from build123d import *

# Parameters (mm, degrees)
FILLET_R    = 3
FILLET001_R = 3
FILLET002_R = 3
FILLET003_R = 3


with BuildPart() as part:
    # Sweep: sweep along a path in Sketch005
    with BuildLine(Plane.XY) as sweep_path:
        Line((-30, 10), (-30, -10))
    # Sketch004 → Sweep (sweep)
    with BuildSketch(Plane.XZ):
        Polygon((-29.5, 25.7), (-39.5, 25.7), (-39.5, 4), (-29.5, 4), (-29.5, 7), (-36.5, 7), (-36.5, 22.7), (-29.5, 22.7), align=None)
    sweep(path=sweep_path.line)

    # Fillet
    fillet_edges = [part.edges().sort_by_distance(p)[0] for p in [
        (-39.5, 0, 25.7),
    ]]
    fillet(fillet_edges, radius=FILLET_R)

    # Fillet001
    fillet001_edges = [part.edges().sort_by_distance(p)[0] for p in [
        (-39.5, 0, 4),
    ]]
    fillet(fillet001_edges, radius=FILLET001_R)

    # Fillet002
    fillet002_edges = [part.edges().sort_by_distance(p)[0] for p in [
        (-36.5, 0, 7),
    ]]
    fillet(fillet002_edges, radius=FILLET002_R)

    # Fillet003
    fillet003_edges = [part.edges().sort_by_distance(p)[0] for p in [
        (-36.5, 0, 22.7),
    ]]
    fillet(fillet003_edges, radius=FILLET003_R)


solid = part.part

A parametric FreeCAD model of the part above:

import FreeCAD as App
import Part
import Sketcher


def edges_at(feature, points):
    """Names of the edges that pass closest to the given points."""
    edges = feature.Shape.Edges
    near = lambda p: min(range(len(edges)), key=lambda i: edges[i].distToShape(Part.Vertex(*p))[0])
    return sorted({f"Edge{near(p) + 1}" for p in points})


def add_polygon(sketch, points):
    """Adds a closed chain of lines whose ends are joined by coincident constraints."""
    first, n = sketch.GeometryCount, len(points)
    for a, b in zip(points, points[1:] + points[:1]):
        sketch.addGeometry(Part.LineSegment(App.Vector(*a, 0), App.Vector(*b, 0)), False)
    for i in range(n):
        sketch.addConstraint(Sketcher.Constraint("Coincident", first + i, 2, first + (i + 1) % n, 1))

doc = App.newDocument("Part")
body = doc.addObject("PartDesign::Body", "Body")

sketch1 = body.newObject("Sketcher::SketchObject", "Sketch")
sketch1.AttachmentSupport = (doc.getObject("XZ_Plane"), [""])
sketch1.MapMode = "FlatFace"
add_polygon(sketch1, [(-29.5, 25.7), (-39.5, 25.7), (-39.5, 4), (-29.5, 4), (-29.5, 7), (-36.5, 7), (-36.5, 22.7), (-29.5, 22.7)])
sketch1.addConstraint([
    Sketcher.Constraint("Horizontal", 0),
    Sketcher.Constraint("Vertical", 1),
    Sketcher.Constraint("Horizontal", 2),
    Sketcher.Constraint("Vertical", 3),
    Sketcher.Constraint("Horizontal", 4),
    Sketcher.Constraint("Vertical", 5),
    Sketcher.Constraint("Horizontal", 6),
    Sketcher.Constraint("Vertical", 7),
    Sketcher.Constraint("Vertical", 3, 2, 6, 2),
    Sketcher.Constraint("Equal", 3, 7),
    Sketcher.Constraint("DistanceX", 0, 2, 0, 1, 10.0),
    Sketcher.Constraint("DistanceX", 4, 2, 4, 1, 7.0),
    Sketcher.Constraint("DistanceY", 3, 1, 3, 2, 3.0),
    Sketcher.Constraint("DistanceY", 1, 2, 1, 1, 21.7),
    Sketcher.Constraint("DistanceY", -1, 1, 1, 2, 4.0),
    Sketcher.Constraint("DistanceX", 0, 2, -1, 1, 39.5),
])

sketch2 = body.newObject("Sketcher::SketchObject", "Sketch001")
sketch2.AttachmentSupport = (doc.getObject("XY_Plane"), [""])
sketch2.MapMode = "FlatFace"
sketch2.addGeometry(Part.LineSegment(App.Vector(-30, 10, 0), App.Vector(-30, -10, 0)), False)
sketch2.addConstraint([
    Sketcher.Constraint("Vertical", 0),
    Sketcher.Constraint("DistanceY", 0, 2, 0, 1, 20.0),
    Sketcher.Constraint("DistanceX", 0, 1, -1, 1, 30.0),
    Sketcher.Constraint("DistanceY", -1, 1, 0, 1, 10.0),
])
doc.recompute()

additivepipe = body.newObject("PartDesign::AdditivePipe", "AdditivePipe")
additivepipe.Profile = sketch1
additivepipe.Spine = (sketch2, ["Edge1"])
doc.recompute()

fillet = body.newObject("PartDesign::Fillet", "Fillet")
fillet.Base = (additivepipe, edges_at(additivepipe, [(-39.5, 0, 25.7)]))
fillet.Radius = 3
doc.recompute()

fillet2 = body.newObject("PartDesign::Fillet", "Fillet001")
fillet2.Base = (fillet, edges_at(fillet, [(-39.5, 0, 4)]))
fillet2.Radius = 3
doc.recompute()

fillet3 = body.newObject("PartDesign::Fillet", "Fillet002")
fillet3.Base = (fillet2, edges_at(fillet2, [(-36.5, 0, 7)]))
fillet3.Radius = 3
doc.recompute()

fillet4 = body.newObject("PartDesign::Fillet", "Fillet003")
fillet4.Base = (fillet3, edges_at(fillet3, [(-36.5, 0, 22.7)]))
fillet4.Radius = 3

doc.recompute()
